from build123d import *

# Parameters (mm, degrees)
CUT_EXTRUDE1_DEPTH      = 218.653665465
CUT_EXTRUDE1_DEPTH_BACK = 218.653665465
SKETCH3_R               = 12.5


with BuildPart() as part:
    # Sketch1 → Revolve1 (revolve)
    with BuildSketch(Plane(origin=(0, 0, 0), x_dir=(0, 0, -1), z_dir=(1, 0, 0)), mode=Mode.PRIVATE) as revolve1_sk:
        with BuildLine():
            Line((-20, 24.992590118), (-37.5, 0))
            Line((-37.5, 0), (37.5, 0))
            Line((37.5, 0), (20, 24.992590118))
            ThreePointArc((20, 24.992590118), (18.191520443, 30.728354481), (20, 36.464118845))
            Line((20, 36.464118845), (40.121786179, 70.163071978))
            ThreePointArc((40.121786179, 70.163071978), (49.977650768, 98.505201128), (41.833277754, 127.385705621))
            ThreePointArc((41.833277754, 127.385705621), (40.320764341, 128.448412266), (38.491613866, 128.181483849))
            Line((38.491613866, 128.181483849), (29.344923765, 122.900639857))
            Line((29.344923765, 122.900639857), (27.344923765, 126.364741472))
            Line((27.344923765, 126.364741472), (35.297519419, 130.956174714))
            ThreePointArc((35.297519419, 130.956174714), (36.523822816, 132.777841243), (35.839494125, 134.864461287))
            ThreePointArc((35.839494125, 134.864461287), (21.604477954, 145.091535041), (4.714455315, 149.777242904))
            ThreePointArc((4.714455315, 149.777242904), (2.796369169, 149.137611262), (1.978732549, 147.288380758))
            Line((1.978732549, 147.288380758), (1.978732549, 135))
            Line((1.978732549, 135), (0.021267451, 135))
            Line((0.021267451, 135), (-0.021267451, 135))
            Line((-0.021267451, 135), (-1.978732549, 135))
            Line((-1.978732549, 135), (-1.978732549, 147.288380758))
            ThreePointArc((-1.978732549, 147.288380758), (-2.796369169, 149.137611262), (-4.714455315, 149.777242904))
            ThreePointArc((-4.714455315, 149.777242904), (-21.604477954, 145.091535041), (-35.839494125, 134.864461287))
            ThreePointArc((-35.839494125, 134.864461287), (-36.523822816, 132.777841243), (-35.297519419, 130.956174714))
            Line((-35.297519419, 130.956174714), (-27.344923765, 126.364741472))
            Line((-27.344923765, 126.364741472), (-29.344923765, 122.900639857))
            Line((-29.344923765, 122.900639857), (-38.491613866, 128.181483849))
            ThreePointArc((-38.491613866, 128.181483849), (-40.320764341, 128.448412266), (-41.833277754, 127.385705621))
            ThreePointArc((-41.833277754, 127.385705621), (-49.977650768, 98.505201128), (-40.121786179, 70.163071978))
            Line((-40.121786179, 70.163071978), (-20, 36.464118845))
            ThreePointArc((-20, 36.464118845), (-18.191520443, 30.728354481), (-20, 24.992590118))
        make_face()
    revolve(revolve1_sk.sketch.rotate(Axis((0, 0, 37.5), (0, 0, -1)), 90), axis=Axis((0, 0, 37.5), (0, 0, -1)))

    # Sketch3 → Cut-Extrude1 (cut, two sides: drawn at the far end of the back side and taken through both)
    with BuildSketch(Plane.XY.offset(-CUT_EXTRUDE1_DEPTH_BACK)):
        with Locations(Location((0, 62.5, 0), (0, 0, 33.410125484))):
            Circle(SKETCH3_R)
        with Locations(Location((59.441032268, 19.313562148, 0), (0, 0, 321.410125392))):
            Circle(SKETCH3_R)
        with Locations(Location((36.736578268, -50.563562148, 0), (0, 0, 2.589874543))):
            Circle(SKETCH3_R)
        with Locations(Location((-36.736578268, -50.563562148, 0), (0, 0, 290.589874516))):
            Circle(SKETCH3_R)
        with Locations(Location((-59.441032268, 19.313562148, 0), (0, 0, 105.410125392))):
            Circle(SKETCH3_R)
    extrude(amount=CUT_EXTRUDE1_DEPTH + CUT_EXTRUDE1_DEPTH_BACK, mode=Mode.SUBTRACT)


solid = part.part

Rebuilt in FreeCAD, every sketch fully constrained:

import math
import FreeCAD as App
import Part
import Sketcher
Q = App.Units.Quantity

doc = App.newDocument("Part")
body = doc.addObject("PartDesign::Body", "Body")

sketch1 = doc.addObject("Sketcher::SketchObject", "Sketch")
body.addObject(sketch1)
sketch1.AttachmentSupport = (doc.YZ_Plane, [""])
sketch1.MapMode = "FlatFace"
sketch1.addGeometry([
    Part.LineSegment(App.Vector(25, 20, 0), App.Vector(0, 37.5, 0)),
    Part.LineSegment(App.Vector(0, 37.5, 0), App.Vector(0, -37.5, 0)),
    Part.LineSegment(App.Vector(0, -37.5, 0), App.Vector(25, -20, 0)),
    Part.ArcOfCircle(Part.Circle(App.Vector(30.7, -28.2, 0), App.Vector(0, 0, 1), 10), math.radians(55), math.radians(125)),
    Part.LineSegment(App.Vector(36.5, -20, 0), App.Vector(70.2, -40.1, 0)),
    Part.ArcOfCircle(Part.Circle(App.Vector(100, 0, 0), App.Vector(0, 0, 1), 50), math.radians(-127), math.radians(-57)),
    Part.ArcOfCircle(Part.Circle(App.Vector(126, -39.7, 0), App.Vector(0, 0, 1), 2.5), math.radians(-57), math.radians(30)),
    Part.LineSegment(App.Vector(128.2, -38.5, 0), App.Vector(122.9, -29.3, 0)),
    Part.LineSegment(App.Vector(122.9, -29.3, 0), App.Vector(126.4, -27.3, 0)),
    Part.LineSegment(App.Vector(126.4, -27.3, 0), App.Vector(131, -35.3, 0)),
    Part.ArcOfCircle(Part.Circle(App.Vector(133.1, -34, 0), App.Vector(0, 0, 1), 2.5), math.radians(-150), math.radians(-46)),
    Part.ArcOfCircle(Part.Circle(App.Vector(100, 0, 0), App.Vector(0, 0, 1), 50), math.radians(-46), math.radians(-5)),
    Part.ArcOfCircle(Part.Circle(App.Vector(147.3, -4.5, 0), App.Vector(0, 0, 1), 2.5), math.radians(-5), math.radians(90)),
    Part.LineSegment(App.Vector(147.3, -2, 0), App.Vector(135, -2, 0)),
    Part.LineSegment(App.Vector(135, -2, 0), App.Vector(135, 2, 0)),
    Part.LineSegment(App.Vector(135, 2, 0), App.Vector(147.3, 2, 0)),
    Part.ArcOfCircle(Part.Circle(App.Vector(147.3, 4.5, 0), App.Vector(0, 0, 1), 2.5), math.radians(-90), math.radians(5)),
    Part.ArcOfCircle(Part.Circle(App.Vector(100, 0, 0), App.Vector(0, 0, 1), 50), math.radians(5), math.radians(46)),
    Part.ArcOfCircle(Part.Circle(App.Vector(133.1, 34, 0), App.Vector(0, 0, 1), 2.5), math.radians(46), math.radians(150)),
    Part.LineSegment(App.Vector(131, 35.3, 0), App.Vector(126.4, 27.3, 0)),
    Part.LineSegment(App.Vector(126.4, 27.3, 0), App.Vector(122.9, 29.3, 0)),
    Part.LineSegment(App.Vector(122.9, 29.3, 0), App.Vector(128.2, 38.5, 0)),
    Part.ArcOfCircle(Part.Circle(App.Vector(126, 39.7, 0), App.Vector(0, 0, 1), 2.5), math.radians(-30), math.radians(57)),
    Part.ArcOfCircle(Part.Circle(App.Vector(100, 0, 0), App.Vector(0, 0, 1), 50), math.radians(57), math.radians(127)),
    Part.LineSegment(App.Vector(70.2, 40.1, 0), App.Vector(36.5, 20, 0)),
    Part.ArcOfCircle(Part.Circle(App.Vector(30.7, 28.2, 0), App.Vector(0, 0, 1), 10), math.radians(-125), math.radians(-55)),
], False)
sketch1.addConstraint([
    Sketcher.Constraint("Coincident", 0, 2, 1, 1),
    Sketcher.Constraint("Coincident", 1, 2, 2, 1),
    Sketcher.Constraint("Tangent", 2, 2, 3, 2),
    Sketcher.Constraint("Coincident", 3, 1, 4, 1),
    Sketcher.Constraint("Coincident", 4, 2, 5, 1),
    Sketcher.Constraint("Tangent", 5, 2, 6, 1),
    Sketcher.Constraint("Tangent", 6, 2, 7, 1),
    Sketcher.Constraint("Coincident", 7, 2, 8, 1),
    Sketcher.Constraint("Coincident", 8, 2, 9, 1),
    Sketcher.Constraint("Tangent", 9, 2, 10, 1),
    Sketcher.Constraint("Tangent", 10, 2, 11, 1),
    Sketcher.Constraint("Tangent", 11, 2, 12, 1),
    Sketcher.Constraint("Tangent", 12, 2, 13, 1),
    Sketcher.Constraint("Coincident", 13, 2, 14, 1),
    Sketcher.Constraint("Coincident", 14, 2, 15, 1),
    Sketcher.Constraint("Tangent", 15, 2, 16, 1),
    Sketcher.Constraint("Tangent", 16, 2, 17, 1),
    Sketcher.Constraint("Tangent", 17, 2, 18, 1),
    Sketcher.Constraint("Tangent", 18, 2, 19, 1),
    Sketcher.Constraint("Coincident", 19, 2, 20, 1),
    Sketcher.Constraint("Coincident", 20, 2, 21, 1),
    Sketcher.Constraint("Tangent", 21, 2, 22, 1),
    Sketcher.Constraint("Tangent", 22, 2, 23, 1),
    Sketcher.Constraint("Coincident", 23, 2, 24, 1),
    Sketcher.Constraint("Coincident", 24, 2, 25, 2),
    Sketcher.Constraint("Tangent", 25, 1, 0, 1),
    Sketcher.Constraint("Vertical", 1),
    Sketcher.Constraint("Horizontal", 13),
    Sketcher.Constraint("Vertical", 14),
    Sketcher.Constraint("Horizontal", 15),
    Sketcher.Constraint("Coincident", 11, 3, 5, 3),
    Sketcher.Constraint("Coincident", 17, 3, 5, 3),
    Sketcher.Constraint("Coincident", 23, 3, 5, 3),
    Sketcher.Constraint("Equal", 6, 10),
    Sketcher.Constraint("Equal", 5, 11),
    Sketcher.Constraint("Equal", 10, 12),
    Sketcher.Constraint("Equal", 12, 16),
    Sketcher.Constraint("Equal", 11, 17),
    Sketcher.Constraint("Equal", 16, 18),
    Sketcher.Constraint("Equal", 18, 22),
    Sketcher.Constraint("Equal", 17, 23),
    Sketcher.Constraint("Equal", 3, 25),
    Sketcher.Constraint("Symmetric", 0, 2, 1, 2, -1, 1),
    Sketcher.Constraint("Symmetric", 12, 3, 16, 3, -1),
    Sketcher.Constraint("Symmetric", 3, 3, 25, 3, -1),
    Sketcher.Constraint("Symmetric", 9, 2, 18, 2, -1),
    Sketcher.Constraint("Symmetric", 7, 2, 20, 2, -1),
    Sketcher.Constraint("Perpendicular", 7, 8),
    Sketcher.Constraint("Perpendicular", 8, 9),
    Sketcher.Constraint("Perpendicular", 19, 20),
    Sketcher.Constraint("Perpendicular", 20, 21),
    Sketcher.Constraint("Horizontal", 2, 2, 3, 1),
    Sketcher.Constraint("Horizontal", 24, 2, 25, 1),
    Sketcher.Constraint("Vertical", 4, 2, 23, 2),
    Sketcher.Constraint("Radius", 3, 10.0),
    Sketcher.Constraint("Radius", 5, 50.0),
    Sketcher.Constraint("Radius", 6, 2.5),
    Sketcher.Constraint("DistanceY", 1, 2, 1, 1, 75.0),
    Sketcher.Constraint("Angle", 0, Q("145 deg")),
    Sketcher.Constraint("Angle", 7, Q("120 deg")),
    Sketcher.Constraint("Distance", 8, 4.0),
    Sketcher.Constraint("DistanceX", -1, 1, 5, 3, 100.0),
    Sketcher.Constraint("DistanceY", 2, 2, -1, 1, 20.0),
    Sketcher.Constraint("DistanceX", -1, 1, 13, 2, 135.0),
    Sketcher.Constraint("DistanceY", 10, 3, 3, 3, 5.855999),
    Sketcher.Constraint("DistanceX", 13, 2, 13, 1, 12.288381),
    Sketcher.Constraint("DistanceX", 7, 2, 10, 3, 10.220598),
    Sketcher.Constraint("DistanceX", -1, 1, 4, 2, 70.163072),
])
revolution = doc.addObject("PartDesign::Revolution", "Revolution")
body.addObject(revolution)
revolution.Profile = sketch1
revolution.ReferenceAxis = (sketch1, ["V_Axis"])
revolution.Angle = 360

sketch2 = doc.addObject("Sketcher::SketchObject", "Sketch001")
body.addObject(sketch2)
sketch2.AttachmentSupport = (doc.XY_Plane, [""])
sketch2.MapMode = "FlatFace"
sketch2.addGeometry([
    Part.Circle(App.Vector(0, 62, 0), App.Vector(0, 0, 1), 12),
    Part.Circle(App.Vector(59, 19, 0), App.Vector(0, 0, 1), 12),
    Part.Circle(App.Vector(37, -51, 0), App.Vector(0, 0, 1), 12),
    Part.Circle(App.Vector(-37, -51, 0), App.Vector(0, 0, 1), 12),
    Part.Circle(App.Vector(-59, 19, 0), App.Vector(0, 0, 1), 12),
], False)
sketch2.addConstraint([
    Sketcher.Constraint("Equal", 0, 1),
    Sketcher.Constraint("Equal", 1, 2),
    Sketcher.Constraint("Equal", 2, 3),
    Sketcher.Constraint("Equal", 3, 4),
    Sketcher.Constraint("Symmetric", 2, 3, 3, 3, -2),
    Sketcher.Constraint("Symmetric", 1, 3, 4, 3, -2),
    Sketcher.Constraint("PointOnObject", 0, 3, -2),
    Sketcher.Constraint("Diameter", 0, 25.0),
    Sketcher.Constraint("DistanceY", -1, 1, 0, 3, 62.5),
    Sketcher.Constraint("DistanceX", -1, 1, 2, 3, 36.736578),
    Sketcher.Constraint("DistanceX", 3, 3, 1, 3, 96.177611),
    Sketcher.Constraint("DistanceY", -1, 1, 1, 3, 19.313562),
    Sketcher.Constraint("DistanceY", 2, 3, -1, 1, 50.563562),
])
pocket1 = doc.addObject("PartDesign::Pocket", "Pocket")
body.addObject(pocket1)
pocket1.Profile = sketch2
pocket1.Type = "ThroughAll"
pocket1.Midplane = True

doc.recompute()
